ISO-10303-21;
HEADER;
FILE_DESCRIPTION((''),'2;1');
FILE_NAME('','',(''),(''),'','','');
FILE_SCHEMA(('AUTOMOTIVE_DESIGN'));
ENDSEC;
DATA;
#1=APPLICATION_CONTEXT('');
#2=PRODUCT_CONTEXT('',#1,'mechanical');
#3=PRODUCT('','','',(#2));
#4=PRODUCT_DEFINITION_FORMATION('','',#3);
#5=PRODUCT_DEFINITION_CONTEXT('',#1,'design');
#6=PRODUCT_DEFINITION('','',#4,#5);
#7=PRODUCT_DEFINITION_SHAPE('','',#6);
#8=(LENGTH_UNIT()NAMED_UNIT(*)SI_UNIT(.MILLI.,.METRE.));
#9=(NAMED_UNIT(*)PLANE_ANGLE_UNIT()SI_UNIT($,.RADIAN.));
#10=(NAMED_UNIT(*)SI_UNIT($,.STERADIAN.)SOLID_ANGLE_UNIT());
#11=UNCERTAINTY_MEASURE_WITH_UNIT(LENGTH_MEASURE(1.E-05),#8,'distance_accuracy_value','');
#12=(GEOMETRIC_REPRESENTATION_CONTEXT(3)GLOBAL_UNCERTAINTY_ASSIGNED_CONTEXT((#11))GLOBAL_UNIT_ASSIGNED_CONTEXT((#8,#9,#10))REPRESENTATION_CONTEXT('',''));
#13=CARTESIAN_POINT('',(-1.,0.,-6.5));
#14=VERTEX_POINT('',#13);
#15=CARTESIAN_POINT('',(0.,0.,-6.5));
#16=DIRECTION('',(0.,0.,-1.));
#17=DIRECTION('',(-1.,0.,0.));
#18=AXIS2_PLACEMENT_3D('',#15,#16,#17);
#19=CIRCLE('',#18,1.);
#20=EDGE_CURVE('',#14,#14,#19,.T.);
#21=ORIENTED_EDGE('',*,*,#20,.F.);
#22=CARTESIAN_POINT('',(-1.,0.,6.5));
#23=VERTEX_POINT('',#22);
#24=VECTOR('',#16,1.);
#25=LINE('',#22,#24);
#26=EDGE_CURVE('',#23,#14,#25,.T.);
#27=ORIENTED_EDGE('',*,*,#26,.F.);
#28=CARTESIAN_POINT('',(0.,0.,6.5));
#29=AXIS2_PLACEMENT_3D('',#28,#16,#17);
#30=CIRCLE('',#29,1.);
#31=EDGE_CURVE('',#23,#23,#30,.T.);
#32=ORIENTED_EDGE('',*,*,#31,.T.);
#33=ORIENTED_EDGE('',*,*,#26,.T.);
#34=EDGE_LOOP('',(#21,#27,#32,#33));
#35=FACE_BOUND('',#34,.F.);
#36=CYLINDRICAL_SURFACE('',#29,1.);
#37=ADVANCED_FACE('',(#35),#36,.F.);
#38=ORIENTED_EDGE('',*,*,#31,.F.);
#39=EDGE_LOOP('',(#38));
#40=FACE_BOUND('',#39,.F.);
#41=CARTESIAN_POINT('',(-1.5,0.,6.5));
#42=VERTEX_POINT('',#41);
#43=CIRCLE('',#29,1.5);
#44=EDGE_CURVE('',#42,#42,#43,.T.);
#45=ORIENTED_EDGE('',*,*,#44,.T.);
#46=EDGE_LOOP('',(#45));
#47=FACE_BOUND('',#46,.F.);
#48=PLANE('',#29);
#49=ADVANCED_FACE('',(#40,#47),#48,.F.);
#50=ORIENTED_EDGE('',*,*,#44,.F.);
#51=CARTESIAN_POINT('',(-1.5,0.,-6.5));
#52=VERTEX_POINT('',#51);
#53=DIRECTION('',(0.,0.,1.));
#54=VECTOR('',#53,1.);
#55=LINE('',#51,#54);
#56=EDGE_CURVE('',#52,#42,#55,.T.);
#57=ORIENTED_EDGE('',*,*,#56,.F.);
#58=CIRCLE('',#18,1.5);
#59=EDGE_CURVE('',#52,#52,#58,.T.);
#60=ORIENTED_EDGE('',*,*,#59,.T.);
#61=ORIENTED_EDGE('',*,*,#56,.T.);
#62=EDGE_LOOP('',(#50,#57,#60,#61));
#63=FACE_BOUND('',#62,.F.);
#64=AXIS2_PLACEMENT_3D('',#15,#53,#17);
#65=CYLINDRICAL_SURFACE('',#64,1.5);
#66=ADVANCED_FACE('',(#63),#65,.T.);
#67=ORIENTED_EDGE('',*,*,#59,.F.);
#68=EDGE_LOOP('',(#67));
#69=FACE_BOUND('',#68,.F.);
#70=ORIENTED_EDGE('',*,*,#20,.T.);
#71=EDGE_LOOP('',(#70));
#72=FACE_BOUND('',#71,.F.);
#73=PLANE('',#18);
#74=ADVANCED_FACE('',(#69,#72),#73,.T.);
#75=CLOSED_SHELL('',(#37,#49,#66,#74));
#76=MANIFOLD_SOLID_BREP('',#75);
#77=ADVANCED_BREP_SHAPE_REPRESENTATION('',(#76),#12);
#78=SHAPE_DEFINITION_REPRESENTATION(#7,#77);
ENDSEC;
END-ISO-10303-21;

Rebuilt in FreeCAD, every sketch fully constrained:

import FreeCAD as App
import Part
import Sketcher
from FreeCAD import Vector


def add_polygon(sketch, points):
    """Adds a closed chain of lines whose ends are joined by coincident constraints."""
    first, n = sketch.GeometryCount, len(points)
    for a, b in zip(points, points[1:] + points[:1]):
        sketch.addGeometry(Part.LineSegment(App.Vector(*a, 0), App.Vector(*b, 0)), False)
    for i in range(n):
        sketch.addConstraint(Sketcher.Constraint("Coincident", first + i, 2, first + (i + 1) % n, 1))

doc = App.newDocument("Part")
params = doc.addObject("Spreadsheet::Sheet", "Params")
for row, (alias, value) in enumerate([
    ("sketch1_height", "13 mm"),
    ("revolution_angle", "360 deg"),
], start=1):
    params.set(f"A{row}", alias)
    params.set(f"B{row}", "=" + value)
    params.setAlias(f"B{row}", alias)

body = doc.addObject("PartDesign::Body", "Body")

# Sketch on XZ plane
sketch1 = doc.addObject("Sketcher::SketchObject", "Sketch")
body.addObject(sketch1)
sketch1.AttachmentSupport = (doc.XZ_Plane, [""])
sketch1.MapMode = "FlatFace"
add_polygon(sketch1, [(-1.5, 6.5), (-1, 6.5), (-1, -6.5), (-1.5, -6.5)])  # lines 0-3
sketch1.addConstraint(Sketcher.Constraint("Horizontal", 0))
sketch1.addConstraint(Sketcher.Constraint("Vertical", 1))
sketch1.addConstraint(Sketcher.Constraint("Horizontal", 2))
sketch1.addConstraint(Sketcher.Constraint("Vertical", 3))
sketch1.addConstraint(Sketcher.Constraint("DistanceY", 1, 2, 1, 1, 13.0))
sketch1.addConstraint(Sketcher.Constraint("DistanceX", 0, 2, -1, 1, 1.0))
sketch1.addConstraint(Sketcher.Constraint("DistanceX", 2, 2, -1, 1, 1.5))
sketch1.addConstraint(Sketcher.Constraint("DistanceY", -1, 1, 0, 2, 6.5))
sketch1.setExpression("Constraints[8]", "Params.sketch1_height")
revolution = doc.addObject("PartDesign::Revolution", "Revolution")
body.addObject(revolution)
revolution.Profile = sketch1
revolution.ReferenceAxis = (sketch1, ["V_Axis"])
revolution.setExpression("Angle", "Params.revolution_angle")

doc.recompute()
